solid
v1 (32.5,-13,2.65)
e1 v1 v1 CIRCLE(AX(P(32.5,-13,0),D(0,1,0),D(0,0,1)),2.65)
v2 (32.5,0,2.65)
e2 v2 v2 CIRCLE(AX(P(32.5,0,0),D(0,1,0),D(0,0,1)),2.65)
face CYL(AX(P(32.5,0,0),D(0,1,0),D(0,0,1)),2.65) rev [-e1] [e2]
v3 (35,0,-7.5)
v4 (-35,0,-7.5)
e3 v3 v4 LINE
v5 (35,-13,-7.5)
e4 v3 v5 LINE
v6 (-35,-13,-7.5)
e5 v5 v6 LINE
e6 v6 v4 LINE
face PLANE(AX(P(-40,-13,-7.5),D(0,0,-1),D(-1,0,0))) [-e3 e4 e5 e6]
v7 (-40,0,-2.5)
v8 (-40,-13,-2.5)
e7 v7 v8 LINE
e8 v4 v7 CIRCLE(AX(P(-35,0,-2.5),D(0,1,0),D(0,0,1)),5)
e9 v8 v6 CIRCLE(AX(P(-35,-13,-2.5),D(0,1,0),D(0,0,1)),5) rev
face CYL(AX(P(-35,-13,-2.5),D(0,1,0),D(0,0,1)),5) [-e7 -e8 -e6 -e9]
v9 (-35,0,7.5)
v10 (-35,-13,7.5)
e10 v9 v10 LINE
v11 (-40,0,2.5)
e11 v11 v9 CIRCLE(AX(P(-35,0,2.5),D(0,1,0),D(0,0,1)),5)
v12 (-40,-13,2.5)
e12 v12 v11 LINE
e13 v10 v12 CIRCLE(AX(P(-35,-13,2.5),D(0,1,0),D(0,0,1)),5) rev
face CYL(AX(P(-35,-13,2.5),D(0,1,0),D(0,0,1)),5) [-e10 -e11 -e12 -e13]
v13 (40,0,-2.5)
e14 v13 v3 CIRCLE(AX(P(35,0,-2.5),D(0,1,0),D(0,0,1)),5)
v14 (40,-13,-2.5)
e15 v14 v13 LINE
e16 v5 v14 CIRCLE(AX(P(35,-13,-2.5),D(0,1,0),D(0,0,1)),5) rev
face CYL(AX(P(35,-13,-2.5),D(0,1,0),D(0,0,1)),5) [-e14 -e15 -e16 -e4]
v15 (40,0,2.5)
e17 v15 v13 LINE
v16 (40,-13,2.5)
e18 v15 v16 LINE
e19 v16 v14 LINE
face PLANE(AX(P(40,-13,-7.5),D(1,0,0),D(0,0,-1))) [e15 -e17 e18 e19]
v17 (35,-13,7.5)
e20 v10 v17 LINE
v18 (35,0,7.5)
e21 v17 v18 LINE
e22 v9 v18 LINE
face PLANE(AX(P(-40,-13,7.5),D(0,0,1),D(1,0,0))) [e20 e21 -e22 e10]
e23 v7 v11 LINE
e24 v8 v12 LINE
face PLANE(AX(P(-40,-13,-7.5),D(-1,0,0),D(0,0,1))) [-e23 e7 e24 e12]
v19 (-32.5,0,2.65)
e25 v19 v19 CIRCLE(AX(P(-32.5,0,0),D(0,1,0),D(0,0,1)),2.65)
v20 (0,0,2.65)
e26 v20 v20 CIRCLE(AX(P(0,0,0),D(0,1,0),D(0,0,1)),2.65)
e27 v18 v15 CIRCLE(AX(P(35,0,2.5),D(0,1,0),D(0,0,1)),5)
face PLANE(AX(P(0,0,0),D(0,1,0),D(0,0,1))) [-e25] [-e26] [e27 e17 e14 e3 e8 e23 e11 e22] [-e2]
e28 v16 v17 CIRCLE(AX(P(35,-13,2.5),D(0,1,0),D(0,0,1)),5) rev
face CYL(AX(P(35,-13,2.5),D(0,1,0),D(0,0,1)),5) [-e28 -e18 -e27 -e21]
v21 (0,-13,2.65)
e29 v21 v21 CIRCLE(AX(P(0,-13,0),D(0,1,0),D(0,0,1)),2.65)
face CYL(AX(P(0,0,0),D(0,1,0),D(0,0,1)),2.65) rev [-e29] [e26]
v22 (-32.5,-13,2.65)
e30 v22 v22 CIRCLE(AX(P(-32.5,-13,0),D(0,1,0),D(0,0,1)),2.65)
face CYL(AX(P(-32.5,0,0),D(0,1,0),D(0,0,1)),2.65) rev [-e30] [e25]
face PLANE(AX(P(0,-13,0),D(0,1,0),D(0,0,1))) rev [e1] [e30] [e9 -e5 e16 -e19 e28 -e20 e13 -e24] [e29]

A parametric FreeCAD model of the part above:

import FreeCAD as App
import Part
import Sketcher
from FreeCAD import Vector
Q = App.Units.Quantity


def edges_at(feature, points):
    """Names of the edges that pass closest to the given points."""
    edges = feature.Shape.Edges
    near = lambda p: min(range(len(edges)), key=lambda i: edges[i].distToShape(Part.Vertex(*p))[0])
    return sorted({f"Edge{near(p) + 1}" for p in points})

doc = App.newDocument("Part")
body = doc.addObject("PartDesign::Body", "Body")

sketch1 = body.newObject("Sketcher::SketchObject", "Sketch")
sketch1.AttachmentSupport = (doc.getObject("XZ_Plane"), [""])
sketch1.MapMode = "FlatFace"
sketch1.addGeometry([
    Part.LineSegment(Vector(-40, -8, 0), Vector(-40, 8, 0)),
    Part.LineSegment(Vector(-40, 8, 0), Vector(40, 8, 0)),
    Part.LineSegment(Vector(40, 8, 0), Vector(40, -8, 0)),
    Part.LineSegment(Vector(40, -8, 0), Vector(-40, -8, 0)),
], False)
sketch1.addConstraint([
    Sketcher.Constraint("Coincident", 0, 2, 1, 1),
    Sketcher.Constraint("Coincident", 1, 2, 2, 1),
    Sketcher.Constraint("Coincident", 2, 2, 3, 1),
    Sketcher.Constraint("Coincident", 3, 2, 0, 1),
    Sketcher.Constraint("Vertical", 0),
    Sketcher.Constraint("Horizontal", 1),
    Sketcher.Constraint("Vertical", 2),
    Sketcher.Constraint("Horizontal", 3),
    Sketcher.Constraint("Symmetric", 0, 2, 2, 2, -1, 1),
    Sketcher.Constraint("DistanceX", 1, 1, 1, 2, Q("80 mm")),
    Sketcher.Constraint("DistanceY", 0, 1, 0, 2, Q("15 mm")),
])
pad1 = body.newObject("PartDesign::Pad", "Pad")
pad1.Profile = sketch1
pad1.Length = 13

sketch2 = body.newObject("Sketcher::SketchObject", "Sketch001")
sketch2.AttachmentSupport = (doc.getObject("XZ_Plane"), [""])
sketch2.MapMode = "FlatFace"
sketch2.addGeometry([
    Part.Circle(Vector(-32.5, 0, 0), Vector(0, 0, 1), 2.6),
    Part.Circle(Vector(0, 0, 0), Vector(0, 0, 1), 2.6),
    Part.Circle(Vector(32.5, 0, 0), Vector(0, 0, 1), 2.6),
], False)
sketch2.addConstraint([
    Sketcher.Constraint("Coincident", 1, 3, -1, 1),
    Sketcher.Constraint("Equal", 0, 1),
    Sketcher.Constraint("Equal", 1, 2),
    Sketcher.Constraint("Symmetric", 0, 3, 2, 3, -1, 1),
    Sketcher.Constraint("PointOnObject", 0, 3, -1),
    Sketcher.Constraint("Diameter", 0, Q("5.3 mm")),
    Sketcher.Constraint("DistanceX", 0, 3, 2, 3, Q("65 mm")),
])
doc.recompute()
hole = body.newObject("PartDesign::Hole", "Hole")
hole.Profile = sketch2
hole.ThreadType = "None"
hole.Diameter = 5.3
hole.DepthType = "ThroughAll"
hole.Reversed = True
doc.recompute()

fillet = body.newObject("PartDesign::Fillet", "Fillet")
fillet.Base = (hole, edges_at(hole, [
    (-40, -6.5, -7.5),
    (40, -6.5, -7.5),
    (40, -6.5, 7.5),
    (-40, -6.5, 7.5),
]))
fillet.Radius = 5

doc.recompute()
